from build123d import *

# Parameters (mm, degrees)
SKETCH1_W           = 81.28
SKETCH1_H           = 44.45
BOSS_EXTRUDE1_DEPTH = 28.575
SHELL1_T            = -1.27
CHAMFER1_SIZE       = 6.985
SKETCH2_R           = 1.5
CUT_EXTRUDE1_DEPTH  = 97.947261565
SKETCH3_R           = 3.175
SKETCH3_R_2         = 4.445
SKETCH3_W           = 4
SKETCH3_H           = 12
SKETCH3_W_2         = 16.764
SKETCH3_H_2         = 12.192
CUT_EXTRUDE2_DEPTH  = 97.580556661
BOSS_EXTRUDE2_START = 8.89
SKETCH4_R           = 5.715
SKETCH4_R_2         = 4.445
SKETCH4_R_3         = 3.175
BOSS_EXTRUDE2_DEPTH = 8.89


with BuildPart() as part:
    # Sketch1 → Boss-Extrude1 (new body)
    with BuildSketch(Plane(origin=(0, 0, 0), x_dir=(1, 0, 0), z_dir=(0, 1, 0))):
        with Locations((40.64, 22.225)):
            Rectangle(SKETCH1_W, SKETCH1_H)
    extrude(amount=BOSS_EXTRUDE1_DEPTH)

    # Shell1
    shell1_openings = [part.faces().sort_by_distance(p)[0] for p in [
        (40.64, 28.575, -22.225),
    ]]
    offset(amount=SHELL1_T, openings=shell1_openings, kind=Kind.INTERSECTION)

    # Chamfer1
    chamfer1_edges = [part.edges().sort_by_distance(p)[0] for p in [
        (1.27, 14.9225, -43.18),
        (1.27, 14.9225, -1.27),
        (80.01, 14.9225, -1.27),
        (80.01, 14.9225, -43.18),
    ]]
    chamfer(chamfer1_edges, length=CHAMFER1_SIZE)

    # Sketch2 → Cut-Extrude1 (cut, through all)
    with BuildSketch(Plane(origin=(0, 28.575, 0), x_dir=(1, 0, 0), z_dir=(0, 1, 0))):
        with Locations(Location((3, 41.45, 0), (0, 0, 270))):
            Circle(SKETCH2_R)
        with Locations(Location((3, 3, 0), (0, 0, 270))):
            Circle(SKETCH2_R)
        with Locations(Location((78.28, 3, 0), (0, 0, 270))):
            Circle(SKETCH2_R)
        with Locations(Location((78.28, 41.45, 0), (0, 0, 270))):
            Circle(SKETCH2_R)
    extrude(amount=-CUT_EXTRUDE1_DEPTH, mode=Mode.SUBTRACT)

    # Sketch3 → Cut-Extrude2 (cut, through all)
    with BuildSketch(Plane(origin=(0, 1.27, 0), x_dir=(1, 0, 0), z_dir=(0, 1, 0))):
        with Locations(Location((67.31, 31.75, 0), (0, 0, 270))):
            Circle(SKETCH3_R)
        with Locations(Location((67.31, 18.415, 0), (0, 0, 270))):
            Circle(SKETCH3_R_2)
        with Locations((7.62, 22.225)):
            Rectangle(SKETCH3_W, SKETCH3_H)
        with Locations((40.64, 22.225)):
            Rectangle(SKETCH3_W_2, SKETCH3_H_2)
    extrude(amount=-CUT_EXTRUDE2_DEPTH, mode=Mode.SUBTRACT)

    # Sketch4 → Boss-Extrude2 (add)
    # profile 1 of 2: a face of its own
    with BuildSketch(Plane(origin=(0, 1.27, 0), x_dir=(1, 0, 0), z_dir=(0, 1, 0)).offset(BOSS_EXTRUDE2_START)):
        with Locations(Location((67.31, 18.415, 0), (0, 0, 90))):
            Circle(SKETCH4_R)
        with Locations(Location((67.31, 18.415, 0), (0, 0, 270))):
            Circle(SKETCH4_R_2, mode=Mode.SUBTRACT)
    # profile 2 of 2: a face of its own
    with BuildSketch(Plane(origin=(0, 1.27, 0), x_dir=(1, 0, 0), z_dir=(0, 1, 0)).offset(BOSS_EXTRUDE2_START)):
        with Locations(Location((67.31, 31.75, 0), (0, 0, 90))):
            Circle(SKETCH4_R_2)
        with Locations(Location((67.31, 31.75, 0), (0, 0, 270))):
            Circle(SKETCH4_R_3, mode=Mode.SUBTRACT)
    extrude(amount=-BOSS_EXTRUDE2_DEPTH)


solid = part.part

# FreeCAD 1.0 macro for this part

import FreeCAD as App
import Part
import Sketcher
Q = App.Units.Quantity


def edges_at(feature, points):
    """Names of the edges that pass closest to the given points."""
    edges = feature.Shape.Edges
    near = lambda p: min(range(len(edges)), key=lambda i: edges[i].distToShape(Part.Vertex(*p))[0])
    return sorted({f"Edge{near(p) + 1}" for p in points})


def faces_at(feature, points):
    """Names of the faces that lie closest to the given points."""
    faces = feature.Shape.Faces
    near = lambda p: min(range(len(faces)), key=lambda i: faces[i].distToShape(Part.Vertex(*p))[0])
    return sorted({f"Face{near(p) + 1}" for p in points})


def add_polygon(sketch, points):
    """Adds a closed chain of lines whose ends are joined by coincident constraints."""
    first, n = sketch.GeometryCount, len(points)
    for a, b in zip(points, points[1:] + points[:1]):
        sketch.addGeometry(Part.LineSegment(App.Vector(*a, 0), App.Vector(*b, 0)), False)
    for i in range(n):
        sketch.addConstraint(Sketcher.Constraint("Coincident", first + i, 2, first + (i + 1) % n, 1))

doc = App.newDocument("Part")
body = doc.addObject("PartDesign::Body", "Body")

sketch1 = body.newObject("Sketcher::SketchObject", "Sketch")
sketch1.AttachmentSupport = (doc.getObject("XZ_Plane"), [""])
sketch1.MapMode = "FlatFace"
add_polygon(sketch1, [(0, -44.45), (0, 0), (81.28, 0), (81.28, -44.45)])
sketch1.addConstraint(Sketcher.Constraint("Vertical", 0))
sketch1.addConstraint(Sketcher.Constraint("Horizontal", 1))
sketch1.addConstraint(Sketcher.Constraint("Vertical", 2))
sketch1.addConstraint(Sketcher.Constraint("Horizontal", 3))
sketch1.addConstraint(Sketcher.Constraint("Coincident", 0, 2, -1, 1))
sketch1.addConstraint(Sketcher.Constraint("DistanceX", 1, 1, 1, 2, Q("3.2 in")))
sketch1.addConstraint(Sketcher.Constraint("DistanceY", 0, 1, 0, 2, Q("1.75 in")))
pad1 = body.newObject("PartDesign::Pad", "Pad")
pad1.Profile = sketch1
pad1.Length = Q("1.125 in")
pad1.Reversed = True
doc.recompute()

thickness = body.newObject("PartDesign::Thickness", "Thickness")
thickness.Base = (pad1, faces_at(pad1, [(40.64, 28.575, -22.225)]))
thickness.Value = Q("0.05 in")
thickness.Reversed = True
thickness.Join = "Intersection"
doc.recompute()

chamfer = body.newObject("PartDesign::Chamfer", "Chamfer")
chamfer.Base = (thickness, edges_at(thickness, [
    (1.27, 14.922, -43.18),
    (1.27, 14.922, -1.27),
    (80.01, 14.922, -1.27),
    (80.01, 14.922, -43.18),
]))
chamfer.Size = Q("0.275 in")

sketch2 = body.newObject("Sketcher::SketchObject", "Sketch001")
sketch2.AttachmentSupport = (doc.getObject("XZ_Plane"), [""])
sketch2.MapMode = "FlatFace"
sketch2.AttachmentOffset = App.Placement(App.Vector(0, 0, -1.125 * 25.4), App.Rotation())
sketch2.addGeometry(Part.Circle(App.Vector(3, -41.45, 0), App.Vector(0, 0, 1), 1.5), False)
sketch2.addGeometry(Part.Circle(App.Vector(3, -3, 0), App.Vector(0, 0, 1), 1.5), False)
sketch2.addGeometry(Part.Circle(App.Vector(78.28, -3, 0), App.Vector(0, 0, 1), 1.5), False)
sketch2.addGeometry(Part.Circle(App.Vector(78.28, -41.45, 0), App.Vector(0, 0, 1), 1.5), False)
sketch2.addConstraint(Sketcher.Constraint("Equal", 0, 1))
sketch2.addConstraint(Sketcher.Constraint("Equal", 1, 2))
sketch2.addConstraint(Sketcher.Constraint("Equal", 2, 3))
sketch2.addConstraint(Sketcher.Constraint("Horizontal", 1, 3, 2, 3))
sketch2.addConstraint(Sketcher.Constraint("Horizontal", 0, 3, 3, 3))
sketch2.addConstraint(Sketcher.Constraint("Vertical", 0, 3, 1, 3))
sketch2.addConstraint(Sketcher.Constraint("Vertical", 2, 3, 3, 3))
sketch2.addConstraint(Sketcher.Constraint("Diameter", 0, 3.0))
sketch2.addConstraint(Sketcher.Constraint("DistanceX", -1, 1, 0, 3, 3.0))
sketch2.addConstraint(Sketcher.Constraint("DistanceY", 0, 3, -1, 1, 41.45))
sketch2.addConstraint(Sketcher.Constraint("DistanceY", 1, 3, -1, 1, 3.0))
sketch2.addConstraint(Sketcher.Constraint("DistanceX", -1, 1, 2, 3, 78.28))
pocket1 = body.newObject("PartDesign::Pocket", "Pocket")
pocket1.Profile = sketch2
pocket1.Type = "ThroughAll"
pocket1.Reversed = True

sketch3 = body.newObject("Sketcher::SketchObject", "Sketch002")
sketch3.AttachmentSupport = (doc.getObject("XZ_Plane"), [""])
sketch3.MapMode = "FlatFace"
sketch3.AttachmentOffset = App.Placement(App.Vector(0, 0, -0.05 * 25.4), App.Rotation())
sketch3.addGeometry(Part.Circle(App.Vector(67.31, -31.75, 0), App.Vector(0, 0, 1), 3.175), False)
sketch3.addGeometry(Part.Circle(App.Vector(67.31, -18.415, 0), App.Vector(0, 0, 1), 4.445), False)
add_polygon(sketch3, [(5.62, -28.225), (5.62, -16.225), (9.62, -16.225), (9.62, -28.225)])
add_polygon(sketch3, [(32.258, -28.321), (32.258, -16.129), (49.022, -16.129), (49.022, -28.321)])
sketch3.addConstraint(Sketcher.Constraint("Vertical", 2))
sketch3.addConstraint(Sketcher.Constraint("Horizontal", 3))
sketch3.addConstraint(Sketcher.Constraint("Vertical", 4))
sketch3.addConstraint(Sketcher.Constraint("Horizontal", 5))
sketch3.addConstraint(Sketcher.Constraint("Vertical", 6))
sketch3.addConstraint(Sketcher.Constraint("Horizontal", 7))
sketch3.addConstraint(Sketcher.Constraint("Vertical", 8))
sketch3.addConstraint(Sketcher.Constraint("Horizontal", 9))
sketch3.addConstraint(Sketcher.Constraint("Vertical", 0, 3, 1, 3))
sketch3.addConstraint(Sketcher.Constraint("Diameter", 0, Q("0.25 in")))
sketch3.addConstraint(Sketcher.Constraint("Diameter", 1, Q("0.35 in")))
sketch3.addConstraint(Sketcher.Constraint("DistanceX", 7, 1, 7, 2, Q("0.66 in")))
sketch3.addConstraint(Sketcher.Constraint("DistanceY", 6, 1, 6, 2, Q("0.48 in")))
sketch3.addConstraint(Sketcher.Constraint("DistanceX", -1, 1, 0, 3, Q("2.65 in")))
sketch3.addConstraint(Sketcher.Constraint("DistanceY", 0, 3, -1, 1, Q("1.25 in")))
sketch3.addConstraint(Sketcher.Constraint("DistanceX", -1, 1, 6, 2, Q("1.27 in")))
sketch3.addConstraint(Sketcher.Constraint("DistanceY", 1, 3, 6, 2, Q("0.09 in")))
sketch3.addConstraint(Sketcher.Constraint("DistanceY", 1, 3, -1, 1, Q("0.725 in")))
sketch3.addConstraint(Sketcher.Constraint("DistanceX", 3, 1, 3, 2, 4.0))
sketch3.addConstraint(Sketcher.Constraint("DistanceY", 2, 1, 2, 2, 12.0))
sketch3.addConstraint(Sketcher.Constraint("DistanceX", -1, 1, 2, 2, 5.62))
sketch3.addConstraint(Sketcher.Constraint("DistanceY", 2, 2, -1, 1, 16.225))
pocket2 = body.newObject("PartDesign::Pocket", "Pocket001")
pocket2.Profile = sketch3
pocket2.Type = "ThroughAll"
pocket2.Reversed = True

sketch4 = body.newObject("Sketcher::SketchObject", "Sketch003")
sketch4.AttachmentSupport = (doc.getObject("XZ_Plane"), [""])
sketch4.MapMode = "FlatFace"
sketch4.AttachmentOffset = App.Placement(App.Vector(0, 0, -0.4 * 25.4), App.Rotation())
sketch4.addGeometry(Part.Circle(App.Vector(67.31, -18.415, 0), App.Vector(0, 0, 1), 5.715), False)
sketch4.addGeometry(Part.Circle(App.Vector(67.31, -18.415, 0), App.Vector(0, 0, 1), 4.445), False)
sketch4.addGeometry(Part.Circle(App.Vector(67.31, -31.75, 0), App.Vector(0, 0, 1), 4.445), False)
sketch4.addGeometry(Part.Circle(App.Vector(67.31, -31.75, 0), App.Vector(0, 0, 1), 3.175), False)
sketch4.addConstraint(Sketcher.Constraint("Coincident", 1, 3, 0, 3))
sketch4.addConstraint(Sketcher.Constraint("Coincident", 3, 3, 2, 3))
sketch4.addConstraint(Sketcher.Constraint("Equal", 1, 2))
sketch4.addConstraint(Sketcher.Constraint("Vertical", 1, 3, 2, 3))
sketch4.addConstraint(Sketcher.Constraint("Diameter", 0, Q("0.45 in")))
sketch4.addConstraint(Sketcher.Constraint("Diameter", 1, Q("0.35 in")))
sketch4.addConstraint(Sketcher.Constraint("Diameter", 3, Q("0.25 in")))
sketch4.addConstraint(Sketcher.Constraint("DistanceX", -1, 1, 0, 3, Q("2.65 in")))
sketch4.addConstraint(Sketcher.Constraint("DistanceY", 2, 3, -1, 1, Q("1.25 in")))
sketch4.addConstraint(Sketcher.Constraint("DistanceY", 0, 3, -1, 1, Q("0.725 in")))
pad2 = body.newObject("PartDesign::Pad", "Pad001")
pad2.Profile = sketch4
pad2.Length = Q("0.35 in")

doc.recompute()
